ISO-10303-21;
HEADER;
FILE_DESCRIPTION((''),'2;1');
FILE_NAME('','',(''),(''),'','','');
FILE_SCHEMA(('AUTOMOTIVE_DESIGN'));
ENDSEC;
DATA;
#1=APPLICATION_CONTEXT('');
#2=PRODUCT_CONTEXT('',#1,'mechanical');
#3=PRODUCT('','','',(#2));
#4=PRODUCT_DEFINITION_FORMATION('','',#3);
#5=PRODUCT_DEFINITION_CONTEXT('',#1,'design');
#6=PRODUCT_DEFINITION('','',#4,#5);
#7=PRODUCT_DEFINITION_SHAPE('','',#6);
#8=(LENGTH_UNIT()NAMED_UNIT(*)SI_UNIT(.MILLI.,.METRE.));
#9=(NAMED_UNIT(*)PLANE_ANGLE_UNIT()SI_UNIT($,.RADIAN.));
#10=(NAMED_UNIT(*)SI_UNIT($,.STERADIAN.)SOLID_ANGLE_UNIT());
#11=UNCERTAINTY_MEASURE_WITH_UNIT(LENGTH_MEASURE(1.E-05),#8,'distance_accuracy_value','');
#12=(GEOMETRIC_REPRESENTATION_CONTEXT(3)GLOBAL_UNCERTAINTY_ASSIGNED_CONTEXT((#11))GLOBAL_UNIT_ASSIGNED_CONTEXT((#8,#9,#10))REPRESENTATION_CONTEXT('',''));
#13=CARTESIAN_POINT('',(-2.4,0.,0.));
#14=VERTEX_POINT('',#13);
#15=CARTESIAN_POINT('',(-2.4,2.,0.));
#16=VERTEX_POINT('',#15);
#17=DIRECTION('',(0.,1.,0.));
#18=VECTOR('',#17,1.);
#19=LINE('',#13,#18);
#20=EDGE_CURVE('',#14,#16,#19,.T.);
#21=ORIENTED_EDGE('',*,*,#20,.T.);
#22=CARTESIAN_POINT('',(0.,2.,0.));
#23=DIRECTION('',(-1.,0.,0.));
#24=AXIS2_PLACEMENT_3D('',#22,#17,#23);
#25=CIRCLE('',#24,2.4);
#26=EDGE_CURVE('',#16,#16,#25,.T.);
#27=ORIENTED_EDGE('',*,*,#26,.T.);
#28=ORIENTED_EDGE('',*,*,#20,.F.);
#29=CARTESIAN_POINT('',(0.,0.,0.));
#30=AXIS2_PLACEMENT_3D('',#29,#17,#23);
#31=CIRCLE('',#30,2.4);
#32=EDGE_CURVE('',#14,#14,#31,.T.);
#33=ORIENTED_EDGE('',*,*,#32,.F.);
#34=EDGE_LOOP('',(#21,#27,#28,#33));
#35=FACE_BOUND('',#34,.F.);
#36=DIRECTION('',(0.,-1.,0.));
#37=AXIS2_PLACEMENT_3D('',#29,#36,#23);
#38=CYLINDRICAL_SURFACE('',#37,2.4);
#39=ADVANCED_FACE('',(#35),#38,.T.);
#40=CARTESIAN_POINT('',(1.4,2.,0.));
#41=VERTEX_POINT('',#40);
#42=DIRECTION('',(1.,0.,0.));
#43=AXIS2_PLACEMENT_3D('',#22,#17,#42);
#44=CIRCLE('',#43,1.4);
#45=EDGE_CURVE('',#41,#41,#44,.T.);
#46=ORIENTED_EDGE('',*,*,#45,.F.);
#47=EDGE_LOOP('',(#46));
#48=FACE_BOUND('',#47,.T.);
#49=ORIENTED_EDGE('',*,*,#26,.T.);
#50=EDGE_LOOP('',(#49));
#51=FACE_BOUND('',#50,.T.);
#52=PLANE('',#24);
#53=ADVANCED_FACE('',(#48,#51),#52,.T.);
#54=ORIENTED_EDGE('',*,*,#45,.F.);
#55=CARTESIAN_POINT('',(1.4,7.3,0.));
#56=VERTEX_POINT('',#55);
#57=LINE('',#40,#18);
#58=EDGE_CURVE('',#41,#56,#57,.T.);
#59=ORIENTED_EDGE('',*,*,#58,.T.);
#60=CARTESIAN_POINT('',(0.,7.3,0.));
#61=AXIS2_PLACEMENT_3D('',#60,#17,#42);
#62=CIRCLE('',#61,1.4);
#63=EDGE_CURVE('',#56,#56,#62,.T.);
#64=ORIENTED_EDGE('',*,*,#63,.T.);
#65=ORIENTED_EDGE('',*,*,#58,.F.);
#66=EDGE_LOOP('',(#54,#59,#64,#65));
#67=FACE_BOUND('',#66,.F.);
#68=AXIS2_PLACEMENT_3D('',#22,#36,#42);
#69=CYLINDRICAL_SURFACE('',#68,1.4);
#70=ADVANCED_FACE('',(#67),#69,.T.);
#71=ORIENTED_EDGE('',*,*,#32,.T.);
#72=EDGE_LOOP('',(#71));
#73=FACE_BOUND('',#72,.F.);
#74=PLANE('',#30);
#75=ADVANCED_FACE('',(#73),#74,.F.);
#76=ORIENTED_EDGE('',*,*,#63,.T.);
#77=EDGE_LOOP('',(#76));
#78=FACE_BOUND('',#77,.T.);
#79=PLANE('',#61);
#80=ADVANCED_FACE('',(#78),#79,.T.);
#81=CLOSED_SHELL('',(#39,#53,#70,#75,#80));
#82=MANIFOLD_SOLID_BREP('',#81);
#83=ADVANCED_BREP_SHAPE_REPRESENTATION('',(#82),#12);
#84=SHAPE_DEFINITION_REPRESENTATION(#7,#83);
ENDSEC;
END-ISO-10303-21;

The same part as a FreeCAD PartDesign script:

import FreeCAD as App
import Part
import Sketcher

V = App.Vector

doc = App.newDocument("Part")
params = doc.addObject("Spreadsheet::Sheet", "Params")
for row, (alias, value) in enumerate([
    ("sketch1_diameter", "4.8 mm"),
    ("pad1_length", "2 mm"),
    ("sketch2_diameter", "2.8 mm"),
    ("pad2_length", "5.3 mm"),
], start=1):
    params.set(f"A{row}", alias)
    params.set(f"B{row}", "=" + value)
    params.setAlias(f"B{row}", alias)

body = doc.addObject("PartDesign::Body", "Body")

# Sketch on XZ plane
sketch1 = doc.addObject("Sketcher::SketchObject", "Sketch")
body.addObject(sketch1)
sketch1.AttachmentSupport = (doc.XZ_Plane, [""])
sketch1.MapMode = "FlatFace"
sketch1.addGeometry(Part.Circle(V(0, 0, 0), V(0, 0, 1), 2.4), False)
sketch1.addConstraint(Sketcher.Constraint("Coincident", 0, 3, -1, 1))
sketch1.addConstraint(Sketcher.Constraint("Diameter", 0, 4.8))
sketch1.setExpression("Constraints[1]", "Params.sketch1_diameter")
pad1 = doc.addObject("PartDesign::Pad", "Pad")
body.addObject(pad1)
pad1.Profile = sketch1
pad1.setExpression("Length", "Params.pad1_length")
pad1.Reversed = True

# Sketch on XZ plane
sketch2 = doc.addObject("Sketcher::SketchObject", "Sketch001")
body.addObject(sketch2)
sketch2.AttachmentSupport = (doc.XZ_Plane, [""])
sketch2.MapMode = "FlatFace"
sketch2.AttachmentOffset = App.Placement(V(0, 0, -2), App.Rotation())
sketch2.addGeometry(Part.Circle(V(0, 0, 0), V(0, 0, 1), 1.4), False)
sketch2.addConstraint(Sketcher.Constraint("Coincident", 0, 3, -1, 1))
sketch2.addConstraint(Sketcher.Constraint("Diameter", 0, 2.8))
sketch2.setExpression("Constraints[1]", "Params.sketch2_diameter")
pad2 = doc.addObject("PartDesign::Pad", "Pad001")
body.addObject(pad2)
pad2.Profile = sketch2
pad2.setExpression("Length", "Params.pad2_length")
pad2.Reversed = True

doc.recompute()
